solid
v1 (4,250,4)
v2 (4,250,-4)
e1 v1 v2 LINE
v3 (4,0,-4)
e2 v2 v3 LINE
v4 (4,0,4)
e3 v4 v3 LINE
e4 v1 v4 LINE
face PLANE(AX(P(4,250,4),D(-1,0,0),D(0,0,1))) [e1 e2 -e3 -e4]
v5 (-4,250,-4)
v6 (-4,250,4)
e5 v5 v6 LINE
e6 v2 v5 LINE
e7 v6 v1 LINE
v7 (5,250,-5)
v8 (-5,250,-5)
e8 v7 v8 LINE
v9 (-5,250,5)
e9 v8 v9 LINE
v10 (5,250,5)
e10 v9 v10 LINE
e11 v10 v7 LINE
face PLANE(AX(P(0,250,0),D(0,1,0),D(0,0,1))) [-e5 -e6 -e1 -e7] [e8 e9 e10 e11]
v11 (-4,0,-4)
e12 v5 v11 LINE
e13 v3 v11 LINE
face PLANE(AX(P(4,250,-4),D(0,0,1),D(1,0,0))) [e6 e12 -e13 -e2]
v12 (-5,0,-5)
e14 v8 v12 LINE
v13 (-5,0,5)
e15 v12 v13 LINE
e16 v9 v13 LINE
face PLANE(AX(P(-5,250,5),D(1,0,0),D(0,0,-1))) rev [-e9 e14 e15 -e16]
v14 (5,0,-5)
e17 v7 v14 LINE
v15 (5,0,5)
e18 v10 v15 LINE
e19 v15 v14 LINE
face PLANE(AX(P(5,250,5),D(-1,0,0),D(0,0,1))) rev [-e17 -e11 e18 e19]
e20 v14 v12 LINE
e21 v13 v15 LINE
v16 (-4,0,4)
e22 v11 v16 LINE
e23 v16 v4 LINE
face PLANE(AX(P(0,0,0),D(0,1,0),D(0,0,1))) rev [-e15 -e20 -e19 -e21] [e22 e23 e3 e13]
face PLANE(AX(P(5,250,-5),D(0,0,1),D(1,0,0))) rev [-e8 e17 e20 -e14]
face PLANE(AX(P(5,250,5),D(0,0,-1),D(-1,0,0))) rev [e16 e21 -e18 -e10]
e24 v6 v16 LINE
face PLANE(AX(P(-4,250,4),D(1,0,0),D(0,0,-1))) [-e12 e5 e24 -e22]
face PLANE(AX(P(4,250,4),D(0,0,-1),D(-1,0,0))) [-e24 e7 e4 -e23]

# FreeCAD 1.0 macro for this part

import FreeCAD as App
import Part
import Sketcher


def add_polygon(sketch, points):
    """Adds a closed chain of lines whose ends are joined by coincident constraints."""
    first, n = sketch.GeometryCount, len(points)
    for a, b in zip(points, points[1:] + points[:1]):
        sketch.addGeometry(Part.LineSegment(App.Vector(*a, 0), App.Vector(*b, 0)), False)
    for i in range(n):
        sketch.addConstraint(Sketcher.Constraint("Coincident", first + i, 2, first + (i + 1) % n, 1))

doc = App.newDocument("Part")
params = doc.addObject("Spreadsheet::Sheet", "Params")
for row, (alias, value) in enumerate([
    ("sketch1_width", "10 mm"),
    ("sketch1_width2", "8 mm"),
    ("pad1_length", "250 mm"),
], start=1):
    params.set(f"A{row}", alias)
    params.set(f"B{row}", "=" + value)
    params.setAlias(f"B{row}", alias)

body = doc.addObject("PartDesign::Body", "Body")

sketch1 = body.newObject("Sketcher::SketchObject", "Sketch")
sketch1.AttachmentSupport = (doc.getObject("XZ_Plane"), [""])
sketch1.MapMode = "FlatFace"
add_polygon(sketch1, [(-5, -5), (-5, 5), (5, 5), (5, -5)])
add_polygon(sketch1, [(4, 4), (-4, 4), (-4, -4), (4, -4)])
sketch1.addConstraint([
    Sketcher.Constraint("Vertical", 0),
    Sketcher.Constraint("Horizontal", 1),
    Sketcher.Constraint("Vertical", 2),
    Sketcher.Constraint("Horizontal", 3),
    Sketcher.Constraint("Horizontal", 4),
    Sketcher.Constraint("Vertical", 5),
    Sketcher.Constraint("Horizontal", 6),
    Sketcher.Constraint("Vertical", 7),
    Sketcher.Constraint("Symmetric", 0, 2, 2, 2, -1, 1),
    Sketcher.Constraint("Symmetric", 4, 2, 6, 2, -1, 1),
    Sketcher.Constraint("Equal", 3, 0),
    Sketcher.Constraint("Equal", 6, 5),
    Sketcher.Constraint("DistanceX", 1, 1, 1, 2, 10.0),
    Sketcher.Constraint("DistanceX", 4, 2, 4, 1, 8.0),
])
sketch1.setExpression("Constraints[20]", "Params.sketch1_width")
sketch1.setExpression("Constraints[21]", "Params.sketch1_width2")
pad1 = body.newObject("PartDesign::Pad", "Pad")
pad1.Profile = sketch1
pad1.setExpression("Length", "Params.pad1_length")
pad1.Reversed = True

doc.recompute()
